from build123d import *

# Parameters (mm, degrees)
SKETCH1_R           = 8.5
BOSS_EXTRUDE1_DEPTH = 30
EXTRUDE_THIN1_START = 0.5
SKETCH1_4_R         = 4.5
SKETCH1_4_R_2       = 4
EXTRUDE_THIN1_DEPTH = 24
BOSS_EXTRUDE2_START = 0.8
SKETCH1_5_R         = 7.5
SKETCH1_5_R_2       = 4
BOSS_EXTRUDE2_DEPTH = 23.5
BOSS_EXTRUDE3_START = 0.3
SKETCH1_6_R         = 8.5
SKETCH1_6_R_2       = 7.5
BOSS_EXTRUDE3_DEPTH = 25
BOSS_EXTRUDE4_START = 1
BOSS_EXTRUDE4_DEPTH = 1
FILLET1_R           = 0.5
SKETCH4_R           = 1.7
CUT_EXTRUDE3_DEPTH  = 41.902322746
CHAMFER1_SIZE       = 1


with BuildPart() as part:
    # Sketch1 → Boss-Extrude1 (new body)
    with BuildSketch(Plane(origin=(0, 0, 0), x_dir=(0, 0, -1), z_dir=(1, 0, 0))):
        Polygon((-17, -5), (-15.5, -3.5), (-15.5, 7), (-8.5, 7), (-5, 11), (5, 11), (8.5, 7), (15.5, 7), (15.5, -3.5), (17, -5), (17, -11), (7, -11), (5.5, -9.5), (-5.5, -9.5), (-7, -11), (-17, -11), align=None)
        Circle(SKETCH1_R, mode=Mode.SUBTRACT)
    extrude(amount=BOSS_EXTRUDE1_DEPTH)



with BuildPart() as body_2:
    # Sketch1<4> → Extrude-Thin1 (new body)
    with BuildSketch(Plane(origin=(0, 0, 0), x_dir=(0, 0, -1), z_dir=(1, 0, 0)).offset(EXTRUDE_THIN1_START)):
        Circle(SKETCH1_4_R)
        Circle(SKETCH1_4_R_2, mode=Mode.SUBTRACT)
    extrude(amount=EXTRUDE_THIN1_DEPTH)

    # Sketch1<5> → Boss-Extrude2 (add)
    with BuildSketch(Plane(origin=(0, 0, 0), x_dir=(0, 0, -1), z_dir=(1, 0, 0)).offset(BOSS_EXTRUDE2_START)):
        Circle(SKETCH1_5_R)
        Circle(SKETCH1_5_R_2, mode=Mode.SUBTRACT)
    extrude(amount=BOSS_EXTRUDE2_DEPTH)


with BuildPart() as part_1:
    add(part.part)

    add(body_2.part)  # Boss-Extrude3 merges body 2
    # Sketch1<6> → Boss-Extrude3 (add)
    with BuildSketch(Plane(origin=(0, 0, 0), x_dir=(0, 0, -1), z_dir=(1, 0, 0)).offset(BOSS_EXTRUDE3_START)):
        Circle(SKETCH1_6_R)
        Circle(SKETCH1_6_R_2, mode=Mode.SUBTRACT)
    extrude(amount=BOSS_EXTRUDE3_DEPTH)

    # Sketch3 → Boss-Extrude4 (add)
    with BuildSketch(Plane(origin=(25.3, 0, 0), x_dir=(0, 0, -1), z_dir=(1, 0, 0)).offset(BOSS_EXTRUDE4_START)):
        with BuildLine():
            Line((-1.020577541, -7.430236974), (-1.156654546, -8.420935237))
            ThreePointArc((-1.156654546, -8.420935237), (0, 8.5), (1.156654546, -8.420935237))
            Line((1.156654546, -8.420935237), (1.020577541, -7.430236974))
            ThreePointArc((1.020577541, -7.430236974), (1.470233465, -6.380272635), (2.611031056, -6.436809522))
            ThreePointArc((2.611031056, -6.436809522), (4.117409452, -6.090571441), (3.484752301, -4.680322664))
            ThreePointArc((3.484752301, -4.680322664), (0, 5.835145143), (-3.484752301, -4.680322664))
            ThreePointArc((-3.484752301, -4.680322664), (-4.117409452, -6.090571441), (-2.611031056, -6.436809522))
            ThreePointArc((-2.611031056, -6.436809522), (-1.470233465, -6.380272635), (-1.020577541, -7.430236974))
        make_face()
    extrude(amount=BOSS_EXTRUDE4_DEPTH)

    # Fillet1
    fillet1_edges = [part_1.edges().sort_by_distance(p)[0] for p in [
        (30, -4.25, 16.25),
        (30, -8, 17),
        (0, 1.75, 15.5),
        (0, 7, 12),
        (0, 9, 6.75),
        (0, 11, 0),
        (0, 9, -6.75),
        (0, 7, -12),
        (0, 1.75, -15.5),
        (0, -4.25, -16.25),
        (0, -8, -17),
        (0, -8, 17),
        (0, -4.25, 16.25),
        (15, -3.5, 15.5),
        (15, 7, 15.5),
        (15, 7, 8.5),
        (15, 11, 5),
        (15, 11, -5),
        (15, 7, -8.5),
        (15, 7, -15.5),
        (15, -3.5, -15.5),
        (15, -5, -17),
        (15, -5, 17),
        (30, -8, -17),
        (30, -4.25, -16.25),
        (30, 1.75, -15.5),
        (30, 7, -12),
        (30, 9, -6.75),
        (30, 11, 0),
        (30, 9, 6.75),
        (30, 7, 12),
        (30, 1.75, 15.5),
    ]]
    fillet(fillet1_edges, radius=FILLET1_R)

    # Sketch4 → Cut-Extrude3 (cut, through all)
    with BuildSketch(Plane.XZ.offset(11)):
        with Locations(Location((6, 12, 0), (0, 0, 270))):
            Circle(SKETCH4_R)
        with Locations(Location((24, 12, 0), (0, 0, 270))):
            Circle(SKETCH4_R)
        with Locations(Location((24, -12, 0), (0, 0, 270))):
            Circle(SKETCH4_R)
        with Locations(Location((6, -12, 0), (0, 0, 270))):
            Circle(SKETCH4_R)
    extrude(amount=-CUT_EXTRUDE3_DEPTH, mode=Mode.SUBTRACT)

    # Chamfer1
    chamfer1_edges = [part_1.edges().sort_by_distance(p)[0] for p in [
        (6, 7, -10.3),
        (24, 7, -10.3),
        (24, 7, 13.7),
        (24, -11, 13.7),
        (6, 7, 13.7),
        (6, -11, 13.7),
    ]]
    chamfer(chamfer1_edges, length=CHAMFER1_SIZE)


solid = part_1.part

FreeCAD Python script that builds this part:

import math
import FreeCAD as App
import Part
import Sketcher
from FreeCAD import Vector
Q = App.Units.Quantity


def edges_at(feature, points):
    """Names of the edges that pass closest to the given points."""
    edges = feature.Shape.Edges
    near = lambda p: min(range(len(edges)), key=lambda i: edges[i].distToShape(Part.Vertex(*p))[0])
    return sorted({f"Edge{near(p) + 1}" for p in points})


def add_polygon(sketch, points):
    """Adds a closed chain of lines whose ends are joined by coincident constraints."""
    first, n = sketch.GeometryCount, len(points)
    for a, b in zip(points, points[1:] + points[:1]):
        sketch.addGeometry(Part.LineSegment(App.Vector(*a, 0), App.Vector(*b, 0)), False)
    for i in range(n):
        sketch.addConstraint(Sketcher.Constraint("Coincident", first + i, 2, first + (i + 1) % n, 1))

doc = App.newDocument("Part")
body = doc.addObject("PartDesign::Body", "Body")

# Sketch on YZ plane
sketch1 = doc.addObject("Sketcher::SketchObject", "Sketch")
body.addObject(sketch1)
sketch1.AttachmentSupport = (doc.YZ_Plane, [""])
sketch1.MapMode = "FlatFace"
add_polygon(sketch1, [(-3.5, 15.5), (-5, 17), (-11, 17), (-11, 7), (-9.5, 5.5), (-9.5, -5.5), (-11, -7), (-11, -17), (-5, -17), (-3.5, -15.5), (7, -15.5), (7, -8.5), (11, -5), (11, 5), (7, 8.5), (7, 15.5)])  # lines 0-15
sketch1.addGeometry(Part.Circle(Vector(0, 0, 0), Vector(0, 0, 1), 8.5), False)  # 16
sketch1.addConstraint([
    Sketcher.Constraint("Horizontal", 1),
    Sketcher.Constraint("Vertical", 2),
    Sketcher.Constraint("Vertical", 4),
    Sketcher.Constraint("Vertical", 6),
    Sketcher.Constraint("Horizontal", 7),
    Sketcher.Constraint("Horizontal", 9),
    Sketcher.Constraint("Vertical", 10),
    Sketcher.Constraint("Vertical", 12),
    Sketcher.Constraint("Vertical", 14),
    Sketcher.Constraint("Horizontal", 15),
    Sketcher.Constraint("Coincident", 16, 3, -1, 1),
    Sketcher.Constraint("Symmetric", 2, 2, 5, 2, -1),
    Sketcher.Constraint("Symmetric", 0, 2, 7, 2, -1),
    Sketcher.Constraint("Symmetric", 10, 2, 13, 2, -1),
    Sketcher.Constraint("Symmetric", 8, 2, 15, 2, -1),
    Sketcher.Constraint("Parallel", 0, 3),
    Sketcher.Constraint("Perpendicular", 3, 5),
    Sketcher.Constraint("Parallel", 5, 8),
    Sketcher.Constraint("Equal", 6, 12),
    Sketcher.Constraint("Equal", 0, 3),
    Sketcher.Constraint("Equal", 11, 13),
    Sketcher.Constraint("Diameter", 16, Q("17 mm")),
    Sketcher.Constraint("DistanceX", 1, 2, 1, 1, Q("6 mm")),
    Sketcher.Constraint("DistanceY", 2, 2, 2, 1, Q("10 mm")),
    Sketcher.Constraint("DistanceY", 4, 2, 4, 1, Q("11 mm")),
    Sketcher.Constraint("DistanceY", 10, 1, 10, 2, Q("7 mm")),
    Sketcher.Constraint("DistanceX", 9, 1, 9, 2, Q("10.5 mm")),
    Sketcher.Constraint("DistanceX", 0, 2, -1, 1, Q("5 mm")),
    Sketcher.Constraint("DistanceY", -1, 1, 0, 2, Q("17 mm")),
    Sketcher.Constraint("DistanceX", -1, 1, 11, 2, Q("11 mm")),
])
pad1 = doc.addObject("PartDesign::Pad", "Pad")
body.addObject(pad1)
pad1.Profile = sketch1
pad1.Length = 30
body2 = doc.addObject("PartDesign::Body", "Body001")

# Sketch on YZ plane
sketch2 = doc.addObject("Sketcher::SketchObject", "Sketch001")
body2.addObject(sketch2)
sketch2.AttachmentSupport = (doc.getObject("YZ_Plane001"), [""])
sketch2.MapMode = "FlatFace"
sketch2.AttachmentOffset = App.Placement(Vector(0, 0, 0.5), App.Rotation())
sketch2.addGeometry([
    Part.Circle(Vector(0, 0, 0), Vector(0, 0, 1), 4.5),
    Part.Circle(Vector(0, 0, 0), Vector(0, 0, 1), 4),
], False)
sketch2.addConstraint([
    Sketcher.Constraint("Coincident", 0, 3, -1, 1),
    Sketcher.Constraint("Coincident", 1, 3, -1, 1),
    Sketcher.Constraint("Diameter", 0, Q("9 mm")),
    Sketcher.Constraint("Diameter", 1, Q("8 mm")),
])
pad2 = doc.addObject("PartDesign::Pad", "Pad001")
body2.addObject(pad2)
pad2.Profile = sketch2
pad2.Length = 24

# Sketch on YZ plane
sketch3 = doc.addObject("Sketcher::SketchObject", "Sketch002")
body2.addObject(sketch3)
sketch3.AttachmentSupport = (doc.getObject("YZ_Plane001"), [""])
sketch3.MapMode = "FlatFace"
sketch3.AttachmentOffset = App.Placement(Vector(0, 0, 0.8), App.Rotation())
sketch3.addGeometry([
    Part.Circle(Vector(0, 0, 0), Vector(0, 0, 1), 7.5),
    Part.Circle(Vector(0, 0, 0), Vector(0, 0, 1), 4),
], False)
sketch3.addConstraint([
    Sketcher.Constraint("Coincident", 0, 3, -1, 1),
    Sketcher.Constraint("Coincident", 1, 3, -1, 1),
    Sketcher.Constraint("Diameter", 0, Q("15 mm")),
    Sketcher.Constraint("Diameter", 1, Q("8 mm")),
])
pad3 = doc.addObject("PartDesign::Pad", "Pad002")
body2.addObject(pad3)
pad3.Profile = sketch3
pad3.Length = 23.5
body.AllowCompound = True
doc.recompute()

boolean = doc.addObject("PartDesign::Boolean", "Boolean")
body.addObject(boolean)
boolean.Type = "Fuse"
boolean.addObjects([body2])

# Sketch on YZ plane
sketch4 = doc.addObject("Sketcher::SketchObject", "Sketch003")
body.addObject(sketch4)
sketch4.AttachmentSupport = (doc.YZ_Plane, [""])
sketch4.MapMode = "FlatFace"
sketch4.AttachmentOffset = App.Placement(Vector(0, 0, 0.3), App.Rotation())
sketch4.addGeometry([
    Part.Circle(Vector(0, 0, 0), Vector(0, 0, 1), 8),
    Part.Circle(Vector(0, 0, 0), Vector(0, 0, 1), 8),
], False)
sketch4.addConstraint([
    Sketcher.Constraint("Coincident", 0, 3, -1, 1),
    Sketcher.Constraint("Coincident", 1, 3, -1, 1),
    Sketcher.Constraint("Diameter", 0, Q("17 mm")),
    Sketcher.Constraint("Diameter", 1, Q("15 mm")),
])
pad4 = doc.addObject("PartDesign::Pad", "Pad003")
body.addObject(pad4)
pad4.Profile = sketch4
pad4.Length = 25

# Sketch on YZ plane
sketch5 = doc.addObject("Sketcher::SketchObject", "Sketch004")
body.addObject(sketch5)
sketch5.AttachmentSupport = (doc.YZ_Plane, [""])
sketch5.MapMode = "FlatFace"
sketch5.AttachmentOffset = App.Placement(Vector(0, 0, 26.3), App.Rotation())
sketch5.addGeometry([
    Part.LineSegment(Vector(-8.4, 1.2, 0), Vector(-7.4, 1, 0)),  # 0
    Part.ArcOfCircle(Part.Circle(Vector(-7.2, 2, 0), Vector(0, 0, 1), 1), math.radians(-102), math.radians(38)),  # 1
    Part.ArcOfCircle(Part.Circle(Vector(-5.6, 3.2, 0), Vector(0, 0, 1), 1), math.radians(15), math.radians(218)),  # 2
    Part.ArcOfCircle(Part.Circle(Vector(0, 0, 0), Vector(0, 0, 1), 5.8), math.radians(-143), math.radians(143)),  # 3
    Part.ArcOfCircle(Part.Circle(Vector(-5.6, -3.2, 0), Vector(0, 0, 1), 1), math.radians(142), math.radians(345)),  # 4
    Part.ArcOfCircle(Part.Circle(Vector(-7.2, -2, 0), Vector(0, 0, 1), 1), math.radians(-38), math.radians(102)),  # 5
    Part.LineSegment(Vector(-7.4, -1, 0), Vector(-8.4, -1.2, 0)),  # 6
    Part.ArcOfCircle(Part.Circle(Vector(0, 0, 0), Vector(0, 0, 1), 8.5), math.radians(-172), math.radians(172)),  # 7
], False)
sketch5.addConstraint([
    Sketcher.Constraint("Coincident", 0, 2, 1, 1),
    Sketcher.Constraint("Tangent", 1, 2, 2, 2),
    Sketcher.Constraint("Coincident", 2, 1, 3, 2),
    Sketcher.Constraint("Coincident", 3, 1, 4, 2),
    Sketcher.Constraint("Tangent", 4, 1, 5, 1),
    Sketcher.Constraint("Coincident", 5, 2, 6, 1),
    Sketcher.Constraint("Coincident", 6, 2, 7, 1),
    Sketcher.Constraint("Coincident", 7, 2, 0, 1),
    Sketcher.Constraint("Coincident", 3, 3, -1, 1),
    Sketcher.Constraint("Coincident", 7, 3, -1, 1),
    Sketcher.Constraint("Equal", 1, 2),
    Sketcher.Constraint("Equal", 2, 4),
    Sketcher.Constraint("Equal", 4, 5),
    Sketcher.Constraint("Symmetric", 2, 3, 4, 3, -1),
    Sketcher.Constraint("Symmetric", 0, 2, 5, 2, -1),
    Sketcher.Constraint("Vertical", 6, 2, 7, 2),
    Sketcher.Constraint("Radius", 1, Q("1 mm")),
    Sketcher.Constraint("Radius", 7, Q("8.5 mm")),
    Sketcher.Constraint("Distance", 0, Q("1 mm")),
    Sketcher.Constraint("DistanceY", -1, 1, 1, 3, Q("2 mm")),
    Sketcher.Constraint("Radius", 3, Q("5.835145 mm")),
    Sketcher.Constraint("DistanceX", 6, 2, 5, 2, Q("0.990698 mm")),
    Sketcher.Constraint("DistanceX", 1, 2, -1, 1, Q("6.43681 mm")),
    Sketcher.Constraint("DistanceY", -1, 1, 1, 2, Q("2.611031 mm")),
])
pad5 = doc.addObject("PartDesign::Pad", "Pad004")
body.addObject(pad5)
pad5.Profile = sketch5
pad5.Length = 1
doc.recompute()

fillet = doc.addObject("PartDesign::Fillet", "Fillet")
body.addObject(fillet)
fillet.Base = (pad5, edges_at(pad5, [
    (30, -4.25, 16.25),
    (30, -8, 17),
    (0, 1.75, 15.5),
    (0, 7, 12),
    (0, 9, 6.75),
    (0, 11, 0),
    (0, 9, -6.75),
    (0, 7, -12),
    (0, 1.75, -15.5),
    (0, -4.25, -16.25),
    (0, -8, -17),
    (0, -8, 17),
    (0, -4.25, 16.25),
    (15, -3.5, 15.5),
    (15, 7, 15.5),
    (15, 7, 8.5),
    (15, 11, 5),
    (15, 11, -5),
    (15, 7, -8.5),
    (15, 7, -15.5),
    (15, -3.5, -15.5),
    (15, -5, -17),
    (15, -5, 17),
    (30, -8, -17),
    (30, -4.25, -16.25),
    (30, 1.75, -15.5),
    (30, 7, -12),
    (30, 9, -6.75),
    (30, 11, 0),
    (30, 9, 6.75),
    (30, 7, 12),
    (30, 1.75, 15.5),
]))
fillet.Radius = 0.5

# Sketch on XZ plane
sketch6 = doc.addObject("Sketcher::SketchObject", "Sketch005")
body.addObject(sketch6)
sketch6.AttachmentSupport = (doc.XZ_Plane, [""])
sketch6.MapMode = "FlatFace"
sketch6.AttachmentOffset = App.Placement(Vector(0, 0, 11), App.Rotation())
sketch6.addGeometry([
    Part.Circle(Vector(6, 12, 0), Vector(0, 0, 1), 1.7),
    Part.Circle(Vector(24, 12, 0), Vector(0, 0, 1), 1.7),
    Part.Circle(Vector(24, -12, 0), Vector(0, 0, 1), 1.7),
    Part.Circle(Vector(6, -12, 0), Vector(0, 0, 1), 1.7),
], False)
sketch6.addConstraint([
    Sketcher.Constraint("Equal", 0, 1),
    Sketcher.Constraint("Equal", 1, 2),
    Sketcher.Constraint("Equal", 2, 3),
    Sketcher.Constraint("Symmetric", 1, 3, 2, 3, -1),
    Sketcher.Constraint("Symmetric", 0, 3, 3, 3, -1),
    Sketcher.Constraint("Horizontal", 0, 3, 1, 3),
    Sketcher.Constraint("Diameter", 0, Q("3.4 mm")),
    Sketcher.Constraint("DistanceX", -1, 1, 0, 3, Q("6 mm")),
    Sketcher.Constraint("DistanceY", -1, 1, 0, 3, Q("12 mm")),
    Sketcher.Constraint("DistanceX", -1, 1, 1, 3, Q("24 mm")),
])
pocket1 = doc.addObject("PartDesign::Pocket", "Pocket")
body.addObject(pocket1)
pocket1.Profile = sketch6
pocket1.Type = "ThroughAll"
doc.recompute()

chamfer = doc.addObject("PartDesign::Chamfer", "Chamfer")
body.addObject(chamfer)
chamfer.Base = (pocket1, edges_at(pocket1, [
    (6, 7, -10.3),
    (24, 7, -10.3),
    (24, 7, 13.7),
    (24, -11, 13.7),
    (6, 7, 13.7),
    (6, -11, 13.7),
]))
chamfer.Size = 1

doc.recompute()
